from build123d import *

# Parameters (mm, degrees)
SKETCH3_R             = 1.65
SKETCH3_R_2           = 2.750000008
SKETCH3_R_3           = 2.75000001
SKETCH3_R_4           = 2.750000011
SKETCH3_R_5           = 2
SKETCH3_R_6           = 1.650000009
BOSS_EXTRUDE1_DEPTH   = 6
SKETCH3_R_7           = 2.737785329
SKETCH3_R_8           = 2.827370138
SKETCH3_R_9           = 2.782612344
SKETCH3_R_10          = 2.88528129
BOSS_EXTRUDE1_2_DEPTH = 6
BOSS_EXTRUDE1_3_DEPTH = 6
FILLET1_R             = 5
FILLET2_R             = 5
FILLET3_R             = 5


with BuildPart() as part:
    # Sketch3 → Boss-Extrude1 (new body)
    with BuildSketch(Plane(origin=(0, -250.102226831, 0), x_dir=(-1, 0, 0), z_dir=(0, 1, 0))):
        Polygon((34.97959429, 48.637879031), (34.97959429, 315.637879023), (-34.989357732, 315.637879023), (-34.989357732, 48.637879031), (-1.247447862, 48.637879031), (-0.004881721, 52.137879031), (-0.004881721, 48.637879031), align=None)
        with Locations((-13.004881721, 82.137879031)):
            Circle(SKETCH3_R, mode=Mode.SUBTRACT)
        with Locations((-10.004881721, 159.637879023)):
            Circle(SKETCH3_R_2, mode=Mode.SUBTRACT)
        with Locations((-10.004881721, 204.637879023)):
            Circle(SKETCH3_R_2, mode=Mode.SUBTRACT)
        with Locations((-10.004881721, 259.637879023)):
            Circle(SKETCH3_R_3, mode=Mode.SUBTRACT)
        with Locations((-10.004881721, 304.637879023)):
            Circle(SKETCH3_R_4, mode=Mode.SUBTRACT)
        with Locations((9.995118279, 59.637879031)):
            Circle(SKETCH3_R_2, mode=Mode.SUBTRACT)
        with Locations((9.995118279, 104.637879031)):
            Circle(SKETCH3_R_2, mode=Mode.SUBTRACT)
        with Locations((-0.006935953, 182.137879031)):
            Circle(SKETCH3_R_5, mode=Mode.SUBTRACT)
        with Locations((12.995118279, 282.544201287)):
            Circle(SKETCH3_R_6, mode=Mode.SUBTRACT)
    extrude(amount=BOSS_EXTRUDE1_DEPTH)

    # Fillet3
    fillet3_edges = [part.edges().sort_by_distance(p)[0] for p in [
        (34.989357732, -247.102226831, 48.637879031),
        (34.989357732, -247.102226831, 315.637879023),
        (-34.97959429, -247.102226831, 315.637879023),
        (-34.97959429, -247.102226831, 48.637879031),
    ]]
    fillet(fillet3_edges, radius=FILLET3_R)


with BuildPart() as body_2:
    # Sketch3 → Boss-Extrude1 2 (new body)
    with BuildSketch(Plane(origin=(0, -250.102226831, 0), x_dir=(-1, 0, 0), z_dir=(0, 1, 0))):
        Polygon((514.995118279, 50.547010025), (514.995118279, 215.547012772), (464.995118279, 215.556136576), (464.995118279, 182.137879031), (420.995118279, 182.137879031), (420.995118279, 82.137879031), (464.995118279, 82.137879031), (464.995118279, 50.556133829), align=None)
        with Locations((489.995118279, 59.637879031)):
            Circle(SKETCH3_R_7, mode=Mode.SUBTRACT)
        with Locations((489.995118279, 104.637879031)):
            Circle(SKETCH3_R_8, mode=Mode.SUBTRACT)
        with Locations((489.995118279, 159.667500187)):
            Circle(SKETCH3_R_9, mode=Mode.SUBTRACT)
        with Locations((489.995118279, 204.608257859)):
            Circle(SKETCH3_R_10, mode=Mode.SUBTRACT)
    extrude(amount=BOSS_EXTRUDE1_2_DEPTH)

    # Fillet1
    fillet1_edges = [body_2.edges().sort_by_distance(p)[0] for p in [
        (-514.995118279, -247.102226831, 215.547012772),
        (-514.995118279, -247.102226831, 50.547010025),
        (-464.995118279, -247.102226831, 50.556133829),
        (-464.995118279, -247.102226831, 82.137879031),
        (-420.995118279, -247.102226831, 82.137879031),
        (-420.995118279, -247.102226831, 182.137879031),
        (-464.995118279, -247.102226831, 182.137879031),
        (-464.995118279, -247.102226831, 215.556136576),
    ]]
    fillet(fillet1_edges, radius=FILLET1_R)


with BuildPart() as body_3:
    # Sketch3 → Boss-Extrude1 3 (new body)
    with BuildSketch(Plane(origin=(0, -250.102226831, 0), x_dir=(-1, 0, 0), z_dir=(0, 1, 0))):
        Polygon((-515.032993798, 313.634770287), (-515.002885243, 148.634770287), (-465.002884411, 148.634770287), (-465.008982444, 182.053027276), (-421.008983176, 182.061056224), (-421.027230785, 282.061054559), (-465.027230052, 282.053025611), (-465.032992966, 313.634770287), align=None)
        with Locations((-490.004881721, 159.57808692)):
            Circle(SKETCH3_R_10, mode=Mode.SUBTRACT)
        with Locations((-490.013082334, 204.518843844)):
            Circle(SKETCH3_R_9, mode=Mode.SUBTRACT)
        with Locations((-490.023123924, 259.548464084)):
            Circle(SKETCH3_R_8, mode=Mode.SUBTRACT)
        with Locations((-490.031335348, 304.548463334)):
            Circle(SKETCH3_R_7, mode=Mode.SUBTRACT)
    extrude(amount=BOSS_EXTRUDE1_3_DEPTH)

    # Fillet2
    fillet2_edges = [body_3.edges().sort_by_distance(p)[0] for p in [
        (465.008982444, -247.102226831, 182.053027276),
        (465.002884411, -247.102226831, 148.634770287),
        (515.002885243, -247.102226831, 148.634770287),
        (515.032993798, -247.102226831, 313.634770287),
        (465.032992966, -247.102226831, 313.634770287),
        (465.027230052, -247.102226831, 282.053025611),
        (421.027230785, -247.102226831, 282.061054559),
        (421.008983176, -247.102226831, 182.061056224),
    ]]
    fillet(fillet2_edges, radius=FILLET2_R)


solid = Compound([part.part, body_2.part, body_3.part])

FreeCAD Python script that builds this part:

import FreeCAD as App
import Part
import Sketcher

V = App.Vector


def edges_at(feature, points):
    """Names of the edges that pass closest to the given points."""
    edges = feature.Shape.Edges
    near = lambda p: min(range(len(edges)), key=lambda i: edges[i].distToShape(Part.Vertex(*p))[0])
    return sorted({f"Edge{near(p) + 1}" for p in points})

doc = App.newDocument("Part")
body = doc.addObject("PartDesign::Body", "Body")

# Sketch on XZ plane
sketch1 = body.newObject("Sketcher::SketchObject", "Sketch")
sketch1.AttachmentSupport = (doc.getObject("XZ_Plane"), [""])
sketch1.MapMode = "FlatFace"
sketch1.AttachmentOffset = App.Placement(V(0, 0, 250.102227), App.Rotation())
sketch1.addGeometry([
    Part.LineSegment(V(-35, 48.6, 0), V(-35, 315.6, 0)),  # 0
    Part.LineSegment(V(-35, 315.6, 0), V(35, 315.6, 0)),  # 1
    Part.LineSegment(V(35, 315.6, 0), V(35, 48.6, 0)),  # 2
    Part.LineSegment(V(35, 48.6, 0), V(1.2, 48.6, 0)),  # 3
    Part.LineSegment(V(1.2, 48.6, 0), V(0, 52.1, 0)),  # 4
    Part.LineSegment(V(0, 52.1, 0), V(0, 48.6, 0)),  # 5
    Part.LineSegment(V(0, 48.6, 0), V(-35, 48.6, 0)),  # 6
    Part.Circle(V(13, 82.1, 0), V(0, 0, 1), 1.6),  # 7
    Part.Circle(V(10, 159.6, 0), V(0, 0, 1), 2.8),  # 8
    Part.Circle(V(-10, 59.6, 0), V(0, 0, 1), 2.8),  # 9
    Part.Circle(V(-10, 104.6, 0), V(0, 0, 1), 2.8),  # 10
    Part.Circle(V(10, 204.6, 0), V(0, 0, 1), 2.8),  # 11
    Part.Circle(V(0, 182.1, 0), V(0, 0, 1), 2),  # 12
    Part.Circle(V(10, 259.6, 0), V(0, 0, 1), 2.8),  # 13
    Part.Circle(V(10, 304.6, 0), V(0, 0, 1), 2.8),  # 14
    Part.Circle(V(-13, 282.5, 0), V(0, 0, 1), 1.7),  # 15
], False)
sketch1.addConstraint([
    Sketcher.Constraint("Coincident", 0, 2, 1, 1),
    Sketcher.Constraint("Coincident", 1, 2, 2, 1),
    Sketcher.Constraint("Coincident", 2, 2, 3, 1),
    Sketcher.Constraint("Coincident", 3, 2, 4, 1),
    Sketcher.Constraint("Coincident", 4, 2, 5, 1),
    Sketcher.Constraint("Coincident", 5, 2, 6, 1),
    Sketcher.Constraint("Coincident", 6, 2, 0, 1),
    Sketcher.Constraint("Vertical", 0),
    Sketcher.Constraint("Horizontal", 1),
    Sketcher.Constraint("Vertical", 2),
    Sketcher.Constraint("Horizontal", 3),
    Sketcher.Constraint("Vertical", 5),
    Sketcher.Constraint("Horizontal", 6),
    Sketcher.Constraint("Equal", 8, 9),
    Sketcher.Constraint("Equal", 9, 10),
    Sketcher.Constraint("Equal", 10, 11),
    Sketcher.Constraint("Equal", 11, 13),
    Sketcher.Constraint("Equal", 13, 14),
    Sketcher.Constraint("Equal", 7, 15),
    Sketcher.Constraint("Horizontal", 3, 2, 5, 2),
    Sketcher.Constraint("Vertical", 9, 3, 10, 3),
    Sketcher.Constraint("Vertical", 8, 3, 11, 3),
    Sketcher.Constraint("Vertical", 11, 3, 13, 3),
    Sketcher.Constraint("Vertical", 13, 3, 14, 3),
    Sketcher.Constraint("Diameter", 12, 4.0),
    Sketcher.Constraint("Diameter", 7, 3.3),
    Sketcher.Constraint("Diameter", 8, 5.5),
    Sketcher.Constraint("DistanceY", 0, 1, 0, 2, 267.0),
    Sketcher.Constraint("DistanceY", 5, 2, 5, 1, 3.5),
    Sketcher.Constraint("DistanceX", 8, 3, 7, 3, 3.0),
    Sketcher.Constraint("DistanceX", 9, 3, 7, 3, 23.0),
    Sketcher.Constraint("DistanceY", 9, 3, 8, 3, 100.0),
    Sketcher.Constraint("DistanceY", 9, 3, 10, 3, 45.0),
    Sketcher.Constraint("DistanceY", 8, 3, 11, 3, 45.0),
    Sketcher.Constraint("DistanceY", 7, 3, 12, 3, 100.0),
    Sketcher.Constraint("DistanceY", 11, 3, 13, 3, 55.0),
    Sketcher.Constraint("DistanceY", 13, 3, 14, 3, 45.0),
    Sketcher.Constraint("DistanceX", 15, 3, 14, 3, 23.0),
    Sketcher.Constraint("DistanceY", 14, 3, 0, 2, 11.0),
    Sketcher.Constraint("DistanceX", 9, 3, 4, 2, 10.0),
    Sketcher.Constraint("DistanceY", 4, 2, 7, 3, 30.0),
    Sketcher.Constraint("DistanceX", 3, 2, 3, 1, 33.74191),
    Sketcher.Constraint("DistanceY", -1, 1, 15, 3, 282.544201),
    Sketcher.Constraint("DistanceX", 1, 1, 1, 2, 69.968952),
    Sketcher.Constraint("DistanceX", 6, 2, 6, 1, 34.984476),
    Sketcher.Constraint("DistanceX", -1, 1, 7, 3, 13.004882),
    Sketcher.Constraint("DistanceY", -1, 1, 7, 3, 82.137879),
    Sketcher.Constraint("DistanceX", 0, 2, 12, 3, 34.98653),
])
pad1 = body.newObject("PartDesign::Pad", "Pad")
pad1.Profile = sketch1
pad1.Length = 6
pad1.Reversed = True
doc.recompute()

fillet = body.newObject("PartDesign::Fillet", "Fillet")
fillet.Base = (pad1, edges_at(pad1, [
    (34.989, -247.102, 48.638),
    (34.989, -247.102, 315.638),
    (-34.98, -247.102, 315.638),
    (-34.98, -247.102, 48.638),
]))
fillet.Radius = 5
body2 = doc.addObject("PartDesign::Body", "Body001")

# Sketch on XZ plane
sketch2 = body2.newObject("Sketcher::SketchObject", "Sketch001")
sketch2.AttachmentSupport = (doc.getObject("XZ_Plane001"), [""])
sketch2.MapMode = "FlatFace"
sketch2.AttachmentOffset = App.Placement(V(0, 0, 250.102227), App.Rotation())
sketch2.addGeometry([
    Part.LineSegment(V(-515, 50.5, 0), V(-515, 215.5, 0)),  # 0
    Part.LineSegment(V(-515, 215.5, 0), V(-465, 215.6, 0)),  # 1
    Part.LineSegment(V(-465, 215.6, 0), V(-465, 182.1, 0)),  # 2
    Part.LineSegment(V(-465, 182.1, 0), V(-421, 182.1, 0)),  # 3
    Part.LineSegment(V(-421, 182.1, 0), V(-421, 82.1, 0)),  # 4
    Part.LineSegment(V(-421, 82.1, 0), V(-465, 82.1, 0)),  # 5
    Part.LineSegment(V(-465, 82.1, 0), V(-465, 50.6, 0)),  # 6
    Part.LineSegment(V(-465, 50.6, 0), V(-515, 50.5, 0)),  # 7
    Part.Circle(V(-490, 59.6, 0), V(0, 0, 1), 2.7),  # 8
    Part.Circle(V(-490, 104.6, 0), V(0, 0, 1), 2.8),  # 9
    Part.Circle(V(-490, 159.7, 0), V(0, 0, 1), 2.8),  # 10
    Part.Circle(V(-490, 204.6, 0), V(0, 0, 1), 2.9),  # 11
], False)
sketch2.addConstraint([
    Sketcher.Constraint("Coincident", 0, 2, 1, 1),
    Sketcher.Constraint("Coincident", 1, 2, 2, 1),
    Sketcher.Constraint("Coincident", 2, 2, 3, 1),
    Sketcher.Constraint("Coincident", 3, 2, 4, 1),
    Sketcher.Constraint("Coincident", 4, 2, 5, 1),
    Sketcher.Constraint("Coincident", 5, 2, 6, 1),
    Sketcher.Constraint("Coincident", 6, 2, 7, 1),
    Sketcher.Constraint("Coincident", 7, 2, 0, 1),
    Sketcher.Constraint("Vertical", 0),
    Sketcher.Constraint("Vertical", 2),
    Sketcher.Constraint("Horizontal", 3),
    Sketcher.Constraint("Vertical", 4),
    Sketcher.Constraint("Horizontal", 5),
    Sketcher.Constraint("Vertical", 6),
    Sketcher.Constraint("Parallel", 1, 7),
    Sketcher.Constraint("Vertical", 8, 3, 9, 3),
    Sketcher.Constraint("Vertical", 9, 3, 10, 3),
    Sketcher.Constraint("Vertical", 10, 3, 11, 3),
    Sketcher.Constraint("Vertical", 2, 2, 5, 2),
    Sketcher.Constraint("DistanceX", 3, 1, 3, 2, 44.0),
    Sketcher.Constraint("DistanceY", 4, 2, 4, 1, 100.0),
    Sketcher.Constraint("Distance", 1, 50.000001),
    Sketcher.Constraint("DistanceY", 8, 3, 9, 3, 45.0),
    Sketcher.Constraint("DistanceX", 0, 2, 11, 3, 25.0),
    Sketcher.Constraint("DistanceY", 9, 3, 2, 2, 77.5),
    Sketcher.Constraint("Diameter", 8, 5.475571),
    Sketcher.Constraint("Diameter", 9, 5.65474),
    Sketcher.Constraint("Diameter", 10, 5.565225),
    Sketcher.Constraint("Diameter", 11, 5.770563),
    Sketcher.Constraint("DistanceY", -1, 1, 10, 3, 159.6675),
    Sketcher.Constraint("DistanceY", 0, 1, 0, 2, 165.000003),
    Sketcher.Constraint("DistanceY", 2, 2, 2, 1, 33.418258),
    Sketcher.Constraint("DistanceX", 8, 3, -1, 1, 489.995118),
    Sketcher.Constraint("DistanceY", -1, 1, 8, 3, 59.637879),
    Sketcher.Constraint("DistanceY", -1, 1, 7, 2, 50.54701),
    Sketcher.Constraint("DistanceY", 9, 3, 11, 3, 99.970379),
])
pad2 = body2.newObject("PartDesign::Pad", "Pad001")
pad2.Profile = sketch2
pad2.Length = 6
pad2.Reversed = True
doc.recompute()

fillet2 = body2.newObject("PartDesign::Fillet", "Fillet001")
fillet2.Base = (pad2, edges_at(pad2, [
    (-514.995, -247.102, 215.547),
    (-514.995, -247.102, 50.547),
    (-464.995, -247.102, 50.556),
    (-464.995, -247.102, 82.138),
    (-420.995, -247.102, 82.138),
    (-420.995, -247.102, 182.138),
    (-464.995, -247.102, 182.138),
    (-464.995, -247.102, 215.556),
]))
fillet2.Radius = 5
body3 = doc.addObject("PartDesign::Body", "Body002")

# Sketch on XZ plane
sketch3 = body3.newObject("Sketcher::SketchObject", "Sketch002")
sketch3.AttachmentSupport = (doc.getObject("XZ_Plane002"), [""])
sketch3.MapMode = "FlatFace"
sketch3.AttachmentOffset = App.Placement(V(0, 0, 250.102227), App.Rotation())
sketch3.addGeometry([
    Part.LineSegment(V(515, 313.6, 0), V(515, 148.6, 0)),  # 0
    Part.LineSegment(V(515, 148.6, 0), V(465, 148.6, 0)),  # 1
    Part.LineSegment(V(465, 148.6, 0), V(465, 182.1, 0)),  # 2
    Part.LineSegment(V(465, 182.1, 0), V(421, 182.1, 0)),  # 3
    Part.LineSegment(V(421, 182.1, 0), V(421, 282.1, 0)),  # 4
    Part.LineSegment(V(421, 282.1, 0), V(465, 282.1, 0)),  # 5
    Part.LineSegment(V(465, 282.1, 0), V(465, 313.6, 0)),  # 6
    Part.LineSegment(V(465, 313.6, 0), V(515, 313.6, 0)),  # 7
    Part.Circle(V(490, 204.5, 0), V(0, 0, 1), 2.8),  # 8
    Part.Circle(V(490, 159.6, 0), V(0, 0, 1), 2.9),  # 9
    Part.Circle(V(490, 259.5, 0), V(0, 0, 1), 2.8),  # 10
    Part.Circle(V(490, 304.5, 0), V(0, 0, 1), 2.7),  # 11
], False)
sketch3.addConstraint([
    Sketcher.Constraint("Coincident", 0, 2, 1, 1),
    Sketcher.Constraint("Coincident", 1, 2, 2, 1),
    Sketcher.Constraint("Coincident", 2, 2, 3, 1),
    Sketcher.Constraint("Coincident", 3, 2, 4, 1),
    Sketcher.Constraint("Coincident", 4, 2, 5, 1),
    Sketcher.Constraint("Coincident", 5, 2, 6, 1),
    Sketcher.Constraint("Coincident", 6, 2, 7, 1),
    Sketcher.Constraint("Coincident", 7, 2, 0, 1),
    Sketcher.Constraint("Horizontal", 1),
    Sketcher.Constraint("Horizontal", 7),
    Sketcher.Constraint("Parallel", 0, 2),
    Sketcher.Constraint("Perpendicular", 2, 3),
    Sketcher.Constraint("Perpendicular", 3, 4),
    Sketcher.Constraint("Perpendicular", 4, 5),
    Sketcher.Constraint("Perpendicular", 5, 6),
    Sketcher.Constraint("Equal", 1, 7),
    Sketcher.Constraint("DistanceX", 1, 2, 1, 1, 50.000001),
    Sketcher.Constraint("Distance", 3, 44.0),
    Sketcher.Constraint("Distance", 4, 100.0),
    Sketcher.Constraint("DistanceY", 10, 3, 11, 3, 44.999999),
    Sketcher.Constraint("Diameter", 10, 5.65474),
    Sketcher.Constraint("Diameter", 11, 5.475571),
    Sketcher.Constraint("Diameter", 8, 5.565225),
    Sketcher.Constraint("Diameter", 9, 5.770563),
    Sketcher.Constraint("DistanceX", 9, 3, 8, 3, 0.008201),
    Sketcher.Constraint("DistanceX", 1, 2, 2, 2, 0.006098),
    Sketcher.Constraint("DistanceX", 2, 2, 9, 3, 24.995899),
    Sketcher.Constraint("DistanceX", -1, 1, 9, 3, 490.004882),
    Sketcher.Constraint("DistanceY", -1, 1, 0, 2, 148.63477),
    Sketcher.Constraint("DistanceY", -1, 1, 6, 2, 313.63477),
    Sketcher.Constraint("DistanceX", 8, 3, 10, 3, 0.010042),
    Sketcher.Constraint("DistanceY", 8, 3, 10, 3, 55.02962),
    Sketcher.Constraint("DistanceX", 10, 3, 11, 3, 0.008211),
    Sketcher.Constraint("DistanceY", 9, 3, 2, 2, 22.47494),
    Sketcher.Constraint("DistanceY", 10, 3, 4, 2, 22.51259),
    Sketcher.Constraint("Distance", 2, 33.418258),
])
pad3 = body3.newObject("PartDesign::Pad", "Pad002")
pad3.Profile = sketch3
pad3.Length = 6
pad3.Reversed = True
doc.recompute()

fillet3 = body3.newObject("PartDesign::Fillet", "Fillet002")
fillet3.Base = (pad3, edges_at(pad3, [
    (465.009, -247.102, 182.053),
    (465.003, -247.102, 148.635),
    (515.003, -247.102, 148.635),
    (515.033, -247.102, 313.635),
    (465.033, -247.102, 313.635),
    (465.027, -247.102, 282.053),
    (421.027, -247.102, 282.061),
    (421.009, -247.102, 182.061),
]))
fillet3.Radius = 5

doc.recompute()
